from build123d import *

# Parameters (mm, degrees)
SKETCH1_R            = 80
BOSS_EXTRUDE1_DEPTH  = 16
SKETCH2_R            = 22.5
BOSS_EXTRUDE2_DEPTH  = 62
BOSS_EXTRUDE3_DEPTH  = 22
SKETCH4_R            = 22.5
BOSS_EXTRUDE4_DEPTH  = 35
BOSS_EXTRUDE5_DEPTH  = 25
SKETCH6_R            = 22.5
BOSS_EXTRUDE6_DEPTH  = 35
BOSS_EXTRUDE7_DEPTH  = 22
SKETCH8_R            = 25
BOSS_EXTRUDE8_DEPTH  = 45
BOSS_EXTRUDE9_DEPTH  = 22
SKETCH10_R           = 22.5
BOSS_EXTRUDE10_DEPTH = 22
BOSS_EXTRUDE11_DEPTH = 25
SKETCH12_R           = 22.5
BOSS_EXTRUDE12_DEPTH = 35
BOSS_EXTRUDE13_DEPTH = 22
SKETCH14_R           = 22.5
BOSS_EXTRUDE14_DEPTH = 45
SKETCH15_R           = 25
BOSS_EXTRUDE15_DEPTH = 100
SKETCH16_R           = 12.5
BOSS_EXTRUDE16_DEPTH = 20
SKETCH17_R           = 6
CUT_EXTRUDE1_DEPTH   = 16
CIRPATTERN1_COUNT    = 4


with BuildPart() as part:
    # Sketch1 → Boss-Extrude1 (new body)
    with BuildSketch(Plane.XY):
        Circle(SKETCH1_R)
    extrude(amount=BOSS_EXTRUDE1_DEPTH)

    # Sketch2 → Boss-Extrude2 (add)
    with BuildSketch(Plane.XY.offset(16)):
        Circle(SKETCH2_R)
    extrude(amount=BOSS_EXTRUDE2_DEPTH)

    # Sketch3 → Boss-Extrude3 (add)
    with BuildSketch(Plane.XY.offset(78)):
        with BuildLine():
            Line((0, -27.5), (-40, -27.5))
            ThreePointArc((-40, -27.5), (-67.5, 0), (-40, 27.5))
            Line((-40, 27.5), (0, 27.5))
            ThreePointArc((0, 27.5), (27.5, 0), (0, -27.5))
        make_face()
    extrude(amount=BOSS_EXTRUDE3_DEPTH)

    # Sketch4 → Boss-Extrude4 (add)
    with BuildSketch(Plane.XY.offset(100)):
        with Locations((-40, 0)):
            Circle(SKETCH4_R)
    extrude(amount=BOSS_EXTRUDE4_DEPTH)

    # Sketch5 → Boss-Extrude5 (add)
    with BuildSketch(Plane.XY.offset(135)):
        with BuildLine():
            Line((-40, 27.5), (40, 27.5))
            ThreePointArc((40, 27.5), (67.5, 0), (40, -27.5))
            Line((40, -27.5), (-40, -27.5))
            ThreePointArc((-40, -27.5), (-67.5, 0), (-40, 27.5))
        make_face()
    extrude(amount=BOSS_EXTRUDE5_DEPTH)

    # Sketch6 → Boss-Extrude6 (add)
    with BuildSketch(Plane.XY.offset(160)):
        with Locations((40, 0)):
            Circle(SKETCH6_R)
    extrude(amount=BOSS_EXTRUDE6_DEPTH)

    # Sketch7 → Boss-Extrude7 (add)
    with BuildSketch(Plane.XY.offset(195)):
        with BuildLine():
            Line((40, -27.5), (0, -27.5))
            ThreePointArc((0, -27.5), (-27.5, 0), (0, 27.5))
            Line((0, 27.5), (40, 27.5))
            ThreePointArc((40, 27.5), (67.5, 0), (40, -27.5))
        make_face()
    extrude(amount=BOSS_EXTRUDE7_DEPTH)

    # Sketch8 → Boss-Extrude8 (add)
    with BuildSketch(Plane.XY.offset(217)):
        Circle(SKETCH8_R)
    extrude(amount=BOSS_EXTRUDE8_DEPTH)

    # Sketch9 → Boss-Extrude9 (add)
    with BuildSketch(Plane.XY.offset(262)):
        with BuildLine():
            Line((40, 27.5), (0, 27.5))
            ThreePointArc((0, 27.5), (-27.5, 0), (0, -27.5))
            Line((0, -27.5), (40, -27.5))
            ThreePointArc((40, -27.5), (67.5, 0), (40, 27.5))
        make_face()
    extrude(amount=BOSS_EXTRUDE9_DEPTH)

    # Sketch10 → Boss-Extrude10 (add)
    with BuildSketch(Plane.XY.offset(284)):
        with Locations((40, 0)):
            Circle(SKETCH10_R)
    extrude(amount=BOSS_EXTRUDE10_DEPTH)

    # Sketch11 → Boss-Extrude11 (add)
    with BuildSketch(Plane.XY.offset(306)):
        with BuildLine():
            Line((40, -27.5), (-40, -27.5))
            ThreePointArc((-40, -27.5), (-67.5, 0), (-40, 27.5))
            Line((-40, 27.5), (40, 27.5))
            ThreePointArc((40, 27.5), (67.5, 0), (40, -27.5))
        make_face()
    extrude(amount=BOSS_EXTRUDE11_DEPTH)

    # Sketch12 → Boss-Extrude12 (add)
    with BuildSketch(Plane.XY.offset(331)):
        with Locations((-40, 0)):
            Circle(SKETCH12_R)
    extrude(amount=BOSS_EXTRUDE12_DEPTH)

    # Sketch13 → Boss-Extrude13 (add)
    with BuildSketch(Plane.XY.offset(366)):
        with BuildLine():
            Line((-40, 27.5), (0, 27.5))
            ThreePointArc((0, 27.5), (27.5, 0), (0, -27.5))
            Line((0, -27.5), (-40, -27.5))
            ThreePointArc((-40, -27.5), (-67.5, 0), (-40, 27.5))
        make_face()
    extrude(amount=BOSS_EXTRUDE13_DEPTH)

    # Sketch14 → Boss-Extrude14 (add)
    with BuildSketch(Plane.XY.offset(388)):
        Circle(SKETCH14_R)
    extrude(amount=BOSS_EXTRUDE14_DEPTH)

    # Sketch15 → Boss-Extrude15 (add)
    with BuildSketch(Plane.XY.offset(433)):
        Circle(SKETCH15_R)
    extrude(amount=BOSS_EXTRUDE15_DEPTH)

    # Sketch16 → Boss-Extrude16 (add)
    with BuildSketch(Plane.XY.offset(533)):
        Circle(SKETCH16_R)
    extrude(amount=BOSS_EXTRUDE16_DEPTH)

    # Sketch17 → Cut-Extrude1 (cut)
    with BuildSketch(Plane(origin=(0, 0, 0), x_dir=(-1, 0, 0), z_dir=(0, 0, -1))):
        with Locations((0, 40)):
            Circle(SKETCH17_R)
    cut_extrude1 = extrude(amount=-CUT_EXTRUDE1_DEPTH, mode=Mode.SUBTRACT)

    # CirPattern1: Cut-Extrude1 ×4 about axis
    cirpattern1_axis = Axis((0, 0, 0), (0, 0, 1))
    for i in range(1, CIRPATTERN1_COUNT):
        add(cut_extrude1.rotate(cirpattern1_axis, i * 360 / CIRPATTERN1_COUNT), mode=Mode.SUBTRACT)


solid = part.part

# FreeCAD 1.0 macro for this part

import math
import FreeCAD as App
import Part
import Sketcher

V = App.Vector
Q = App.Units.Quantity

doc = App.newDocument("Part")
body = doc.addObject("PartDesign::Body", "Body")

# Sketch on XY plane
sketch1 = doc.addObject("Sketcher::SketchObject", "Sketch")
body.addObject(sketch1)
sketch1.AttachmentSupport = (doc.XY_Plane, [""])
sketch1.MapMode = "FlatFace"
sketch1.addGeometry(Part.Circle(V(0, 0, 0), V(0, 0, 1), 80), False)
sketch1.addConstraint(Sketcher.Constraint("Coincident", 0, 3, -1, 1))
sketch1.addConstraint(Sketcher.Constraint("Diameter", 0, Q("160 mm")))
pad1 = doc.addObject("PartDesign::Pad", "Pad")
body.addObject(pad1)
pad1.Profile = sketch1
pad1.Length = 16

# Sketch on XY plane
sketch2 = doc.addObject("Sketcher::SketchObject", "Sketch001")
body.addObject(sketch2)
sketch2.AttachmentSupport = (doc.XY_Plane, [""])
sketch2.MapMode = "FlatFace"
sketch2.AttachmentOffset = App.Placement(V(0, 0, 16), App.Rotation())
sketch2.addGeometry(Part.Circle(V(0, 0, 0), V(0, 0, 1), 22.5), False)
sketch2.addConstraint(Sketcher.Constraint("Coincident", 0, 3, -1, 1))
sketch2.addConstraint(Sketcher.Constraint("Diameter", 0, Q("45 mm")))
pad2 = doc.addObject("PartDesign::Pad", "Pad001")
body.addObject(pad2)
pad2.Profile = sketch2
pad2.Length = 62

# Sketch on XY plane
sketch3 = doc.addObject("Sketcher::SketchObject", "Sketch002")
body.addObject(sketch3)
sketch3.AttachmentSupport = (doc.XY_Plane, [""])
sketch3.MapMode = "FlatFace"
sketch3.AttachmentOffset = App.Placement(V(0, 0, 78), App.Rotation())
sketch3.addGeometry(Part.LineSegment(V(-40, -27.5, 0), V(0, -27.5, 0)), False)
sketch3.addGeometry(Part.ArcOfCircle(Part.Circle(V(0, 0, 0), V(0, 0, 1), 27.5), math.radians(-90), math.radians(90)), False)
sketch3.addGeometry(Part.LineSegment(V(0, 27.5, 0), V(-40, 27.5, 0)), False)
sketch3.addGeometry(Part.ArcOfCircle(Part.Circle(V(-40, 0, 0), V(0, 0, 1), 27.5), math.radians(90), math.radians(270)), False)
sketch3.addConstraint(Sketcher.Constraint("Tangent", 0, 2, 1, 1))
sketch3.addConstraint(Sketcher.Constraint("Tangent", 1, 2, 2, 1))
sketch3.addConstraint(Sketcher.Constraint("Tangent", 2, 2, 3, 1))
sketch3.addConstraint(Sketcher.Constraint("Tangent", 3, 2, 0, 1))
sketch3.addConstraint(Sketcher.Constraint("Horizontal", 0))
sketch3.addConstraint(Sketcher.Constraint("Horizontal", 2))
sketch3.addConstraint(Sketcher.Constraint("Coincident", 1, 3, -1, 1))
sketch3.addConstraint(Sketcher.Constraint("Radius", 1, Q("27.5 mm")))
sketch3.addConstraint(Sketcher.Constraint("DistanceX", 0, 1, 0, 2, Q("40 mm")))
pad3 = doc.addObject("PartDesign::Pad", "Pad002")
body.addObject(pad3)
pad3.Profile = sketch3
pad3.Length = 22

# Sketch on XY plane
sketch4 = doc.addObject("Sketcher::SketchObject", "Sketch003")
body.addObject(sketch4)
sketch4.AttachmentSupport = (doc.XY_Plane, [""])
sketch4.MapMode = "FlatFace"
sketch4.AttachmentOffset = App.Placement(V(0, 0, 100), App.Rotation())
sketch4.addGeometry(Part.Circle(V(-40, 0, 0), V(0, 0, 1), 22.5), False)
sketch4.addConstraint(Sketcher.Constraint("PointOnObject", 0, 3, -1))
sketch4.addConstraint(Sketcher.Constraint("Diameter", 0, Q("45 mm")))
sketch4.addConstraint(Sketcher.Constraint("DistanceX", 0, 3, -1, 1, Q("40 mm")))
pad4 = doc.addObject("PartDesign::Pad", "Pad003")
body.addObject(pad4)
pad4.Profile = sketch4
pad4.Length = 35

# Sketch on XY plane
sketch5 = doc.addObject("Sketcher::SketchObject", "Sketch004")
body.addObject(sketch5)
sketch5.AttachmentSupport = (doc.XY_Plane, [""])
sketch5.MapMode = "FlatFace"
sketch5.AttachmentOffset = App.Placement(V(0, 0, 135), App.Rotation())
sketch5.addGeometry(Part.LineSegment(V(40, 27.5, 0), V(-40, 27.5, 0)), False)
sketch5.addGeometry(Part.ArcOfCircle(Part.Circle(V(-40, 0, 0), V(0, 0, 1), 27.5), math.radians(90), math.radians(270)), False)
sketch5.addGeometry(Part.LineSegment(V(-40, -27.5, 0), V(40, -27.5, 0)), False)
sketch5.addGeometry(Part.ArcOfCircle(Part.Circle(V(40, 0, 0), V(0, 0, 1), 27.5), math.radians(-90), math.radians(90)), False)
sketch5.addConstraint(Sketcher.Constraint("Tangent", 0, 2, 1, 1))
sketch5.addConstraint(Sketcher.Constraint("Tangent", 1, 2, 2, 1))
sketch5.addConstraint(Sketcher.Constraint("Tangent", 2, 2, 3, 1))
sketch5.addConstraint(Sketcher.Constraint("Tangent", 3, 2, 0, 1))
sketch5.addConstraint(Sketcher.Constraint("Horizontal", 0))
sketch5.addConstraint(Sketcher.Constraint("Horizontal", 2))
sketch5.addConstraint(Sketcher.Constraint("Symmetric", 1, 3, 3, 3, -1, 1))
sketch5.addConstraint(Sketcher.Constraint("Radius", 1, Q("27.5 mm")))
sketch5.addConstraint(Sketcher.Constraint("DistanceX", 0, 2, 0, 1, Q("80 mm")))
pad5 = doc.addObject("PartDesign::Pad", "Pad004")
body.addObject(pad5)
pad5.Profile = sketch5
pad5.Length = 25

# Sketch on XY plane
sketch6 = doc.addObject("Sketcher::SketchObject", "Sketch005")
body.addObject(sketch6)
sketch6.AttachmentSupport = (doc.XY_Plane, [""])
sketch6.MapMode = "FlatFace"
sketch6.AttachmentOffset = App.Placement(V(0, 0, 160), App.Rotation())
sketch6.addGeometry(Part.Circle(V(40, 0, 0), V(0, 0, 1), 22.5), False)
sketch6.addConstraint(Sketcher.Constraint("PointOnObject", 0, 3, -1))
sketch6.addConstraint(Sketcher.Constraint("Diameter", 0, Q("45 mm")))
sketch6.addConstraint(Sketcher.Constraint("DistanceX", -1, 1, 0, 3, Q("40 mm")))
pad6 = doc.addObject("PartDesign::Pad", "Pad005")
body.addObject(pad6)
pad6.Profile = sketch6
pad6.Length = 35

# Sketch on XY plane
sketch7 = doc.addObject("Sketcher::SketchObject", "Sketch006")
body.addObject(sketch7)
sketch7.AttachmentSupport = (doc.XY_Plane, [""])
sketch7.MapMode = "FlatFace"
sketch7.AttachmentOffset = App.Placement(V(0, 0, 195), App.Rotation())
sketch7.addGeometry(Part.LineSegment(V(0, -27.5, 0), V(40, -27.5, 0)), False)
sketch7.addGeometry(Part.ArcOfCircle(Part.Circle(V(40, 0, 0), V(0, 0, 1), 27.5), math.radians(-90), math.radians(90)), False)
sketch7.addGeometry(Part.LineSegment(V(40, 27.5, 0), V(0, 27.5, 0)), False)
sketch7.addGeometry(Part.ArcOfCircle(Part.Circle(V(0, 0, 0), V(0, 0, 1), 27.5), math.radians(90), math.radians(270)), False)
sketch7.addConstraint(Sketcher.Constraint("Tangent", 0, 2, 1, 1))
sketch7.addConstraint(Sketcher.Constraint("Tangent", 1, 2, 2, 1))
sketch7.addConstraint(Sketcher.Constraint("Tangent", 2, 2, 3, 1))
sketch7.addConstraint(Sketcher.Constraint("Tangent", 3, 2, 0, 1))
sketch7.addConstraint(Sketcher.Constraint("Horizontal", 0))
sketch7.addConstraint(Sketcher.Constraint("Horizontal", 2))
sketch7.addConstraint(Sketcher.Constraint("Coincident", 3, 3, -1, 1))
sketch7.addConstraint(Sketcher.Constraint("Radius", 1, Q("27.5 mm")))
sketch7.addConstraint(Sketcher.Constraint("DistanceX", 0, 1, 0, 2, Q("40 mm")))
pad7 = doc.addObject("PartDesign::Pad", "Pad006")
body.addObject(pad7)
pad7.Profile = sketch7
pad7.Length = 22

# Sketch on XY plane
sketch8 = doc.addObject("Sketcher::SketchObject", "Sketch007")
body.addObject(sketch8)
sketch8.AttachmentSupport = (doc.XY_Plane, [""])
sketch8.MapMode = "FlatFace"
sketch8.AttachmentOffset = App.Placement(V(0, 0, 217), App.Rotation())
sketch8.addGeometry(Part.Circle(V(0, 0, 0), V(0, 0, 1), 25), False)
sketch8.addConstraint(Sketcher.Constraint("Coincident", 0, 3, -1, 1))
sketch8.addConstraint(Sketcher.Constraint("Diameter", 0, Q("50 mm")))
pad8 = doc.addObject("PartDesign::Pad", "Pad007")
body.addObject(pad8)
pad8.Profile = sketch8
pad8.Length = 45

# Sketch on XY plane
sketch9 = doc.addObject("Sketcher::SketchObject", "Sketch008")
body.addObject(sketch9)
sketch9.AttachmentSupport = (doc.XY_Plane, [""])
sketch9.MapMode = "FlatFace"
sketch9.AttachmentOffset = App.Placement(V(0, 0, 262), App.Rotation())
sketch9.addGeometry(Part.LineSegment(V(40, 27.5, 0), V(0, 27.5, 0)), False)
sketch9.addGeometry(Part.ArcOfCircle(Part.Circle(V(0, 0, 0), V(0, 0, 1), 27.5), math.radians(90), math.radians(270)), False)
sketch9.addGeometry(Part.LineSegment(V(0, -27.5, 0), V(40, -27.5, 0)), False)
sketch9.addGeometry(Part.ArcOfCircle(Part.Circle(V(40, 0, 0), V(0, 0, 1), 27.5), math.radians(-90), math.radians(90)), False)
sketch9.addConstraint(Sketcher.Constraint("Tangent", 0, 2, 1, 1))
sketch9.addConstraint(Sketcher.Constraint("Tangent", 1, 2, 2, 1))
sketch9.addConstraint(Sketcher.Constraint("Tangent", 2, 2, 3, 1))
sketch9.addConstraint(Sketcher.Constraint("Tangent", 3, 2, 0, 1))
sketch9.addConstraint(Sketcher.Constraint("Horizontal", 0))
sketch9.addConstraint(Sketcher.Constraint("Horizontal", 2))
sketch9.addConstraint(Sketcher.Constraint("Coincident", 1, 3, -1, 1))
sketch9.addConstraint(Sketcher.Constraint("Radius", 1, Q("27.5 mm")))
sketch9.addConstraint(Sketcher.Constraint("DistanceX", 0, 2, 0, 1, Q("40 mm")))
pad9 = doc.addObject("PartDesign::Pad", "Pad008")
body.addObject(pad9)
pad9.Profile = sketch9
pad9.Length = 22

# Sketch on XY plane
sketch10 = doc.addObject("Sketcher::SketchObject", "Sketch009")
body.addObject(sketch10)
sketch10.AttachmentSupport = (doc.XY_Plane, [""])
sketch10.MapMode = "FlatFace"
sketch10.AttachmentOffset = App.Placement(V(0, 0, 284), App.Rotation())
sketch10.addGeometry(Part.Circle(V(40, 0, 0), V(0, 0, 1), 22.5), False)
sketch10.addConstraint(Sketcher.Constraint("PointOnObject", 0, 3, -1))
sketch10.addConstraint(Sketcher.Constraint("Diameter", 0, Q("45 mm")))
sketch10.addConstraint(Sketcher.Constraint("DistanceX", -1, 1, 0, 3, Q("40 mm")))
pad10 = doc.addObject("PartDesign::Pad", "Pad009")
body.addObject(pad10)
pad10.Profile = sketch10
pad10.Length = 22

# Sketch on XY plane
sketch11 = doc.addObject("Sketcher::SketchObject", "Sketch010")
body.addObject(sketch11)
sketch11.AttachmentSupport = (doc.XY_Plane, [""])
sketch11.MapMode = "FlatFace"
sketch11.AttachmentOffset = App.Placement(V(0, 0, 306), App.Rotation())
sketch11.addGeometry(Part.LineSegment(V(-40, -27.5, 0), V(40, -27.5, 0)), False)
sketch11.addGeometry(Part.ArcOfCircle(Part.Circle(V(40, 0, 0), V(0, 0, 1), 27.5), math.radians(-90), math.radians(90)), False)
sketch11.addGeometry(Part.LineSegment(V(40, 27.5, 0), V(-40, 27.5, 0)), False)
sketch11.addGeometry(Part.ArcOfCircle(Part.Circle(V(-40, 0, 0), V(0, 0, 1), 27.5), math.radians(90), math.radians(270)), False)
sketch11.addConstraint(Sketcher.Constraint("Tangent", 0, 2, 1, 1))
sketch11.addConstraint(Sketcher.Constraint("Tangent", 1, 2, 2, 1))
sketch11.addConstraint(Sketcher.Constraint("Tangent", 2, 2, 3, 1))
sketch11.addConstraint(Sketcher.Constraint("Tangent", 3, 2, 0, 1))
sketch11.addConstraint(Sketcher.Constraint("Horizontal", 0))
sketch11.addConstraint(Sketcher.Constraint("Horizontal", 2))
sketch11.addConstraint(Sketcher.Constraint("Symmetric", 1, 3, 3, 3, -1, 1))
sketch11.addConstraint(Sketcher.Constraint("Radius", 1, Q("27.5 mm")))
sketch11.addConstraint(Sketcher.Constraint("DistanceX", 0, 1, 0, 2, Q("80 mm")))
pad11 = doc.addObject("PartDesign::Pad", "Pad010")
body.addObject(pad11)
pad11.Profile = sketch11
pad11.Length = 25

# Sketch on XY plane
sketch12 = doc.addObject("Sketcher::SketchObject", "Sketch011")
body.addObject(sketch12)
sketch12.AttachmentSupport = (doc.XY_Plane, [""])
sketch12.MapMode = "FlatFace"
sketch12.AttachmentOffset = App.Placement(V(0, 0, 331), App.Rotation())
sketch12.addGeometry(Part.Circle(V(-40, 0, 0), V(0, 0, 1), 22.5), False)
sketch12.addConstraint(Sketcher.Constraint("PointOnObject", 0, 3, -1))
sketch12.addConstraint(Sketcher.Constraint("Diameter", 0, Q("45 mm")))
sketch12.addConstraint(Sketcher.Constraint("DistanceX", 0, 3, -1, 1, Q("40 mm")))
pad12 = doc.addObject("PartDesign::Pad", "Pad011")
body.addObject(pad12)
pad12.Profile = sketch12
pad12.Length = 35

# Sketch on XY plane
sketch13 = doc.addObject("Sketcher::SketchObject", "Sketch012")
body.addObject(sketch13)
sketch13.AttachmentSupport = (doc.XY_Plane, [""])
sketch13.MapMode = "FlatFace"
sketch13.AttachmentOffset = App.Placement(V(0, 0, 366), App.Rotation())
sketch13.addGeometry(Part.LineSegment(V(0, 27.5, 0), V(-40, 27.5, 0)), False)
sketch13.addGeometry(Part.ArcOfCircle(Part.Circle(V(-40, 0, 0), V(0, 0, 1), 27.5), math.radians(90), math.radians(270)), False)
sketch13.addGeometry(Part.LineSegment(V(-40, -27.5, 0), V(0, -27.5, 0)), False)
sketch13.addGeometry(Part.ArcOfCircle(Part.Circle(V(0, 0, 0), V(0, 0, 1), 27.5), math.radians(-90), math.radians(90)), False)
sketch13.addConstraint(Sketcher.Constraint("Tangent", 0, 2, 1, 1))
sketch13.addConstraint(Sketcher.Constraint("Tangent", 1, 2, 2, 1))
sketch13.addConstraint(Sketcher.Constraint("Tangent", 2, 2, 3, 1))
sketch13.addConstraint(Sketcher.Constraint("Tangent", 3, 2, 0, 1))
sketch13.addConstraint(Sketcher.Constraint("Horizontal", 0))
sketch13.addConstraint(Sketcher.Constraint("Horizontal", 2))
sketch13.addConstraint(Sketcher.Constraint("Coincident", 3, 3, -1, 1))
sketch13.addConstraint(Sketcher.Constraint("Radius", 1, Q("27.5 mm")))
sketch13.addConstraint(Sketcher.Constraint("DistanceX", 0, 2, 0, 1, Q("40 mm")))
pad13 = doc.addObject("PartDesign::Pad", "Pad012")
body.addObject(pad13)
pad13.Profile = sketch13
pad13.Length = 22

# Sketch on XY plane
sketch14 = doc.addObject("Sketcher::SketchObject", "Sketch013")
body.addObject(sketch14)
sketch14.AttachmentSupport = (doc.XY_Plane, [""])
sketch14.MapMode = "FlatFace"
sketch14.AttachmentOffset = App.Placement(V(0, 0, 388), App.Rotation())
sketch14.addGeometry(Part.Circle(V(0, 0, 0), V(0, 0, 1), 22.5), False)
sketch14.addConstraint(Sketcher.Constraint("Coincident", 0, 3, -1, 1))
sketch14.addConstraint(Sketcher.Constraint("Diameter", 0, Q("45 mm")))
pad14 = doc.addObject("PartDesign::Pad", "Pad013")
body.addObject(pad14)
pad14.Profile = sketch14
pad14.Length = 45

# Sketch on XY plane
sketch15 = doc.addObject("Sketcher::SketchObject", "Sketch014")
body.addObject(sketch15)
sketch15.AttachmentSupport = (doc.XY_Plane, [""])
sketch15.MapMode = "FlatFace"
sketch15.AttachmentOffset = App.Placement(V(0, 0, 433), App.Rotation())
sketch15.addGeometry(Part.Circle(V(0, 0, 0), V(0, 0, 1), 25), False)
sketch15.addConstraint(Sketcher.Constraint("Coincident", 0, 3, -1, 1))
sketch15.addConstraint(Sketcher.Constraint("Diameter", 0, Q("50 mm")))
pad15 = doc.addObject("PartDesign::Pad", "Pad014")
body.addObject(pad15)
pad15.Profile = sketch15
pad15.Length = 100

# Sketch on XY plane
sketch16 = doc.addObject("Sketcher::SketchObject", "Sketch015")
body.addObject(sketch16)
sketch16.AttachmentSupport = (doc.XY_Plane, [""])
sketch16.MapMode = "FlatFace"
sketch16.AttachmentOffset = App.Placement(V(0, 0, 533), App.Rotation())
sketch16.addGeometry(Part.Circle(V(0, 0, 0), V(0, 0, 1), 12.5), False)
sketch16.addConstraint(Sketcher.Constraint("Coincident", 0, 3, -1, 1))
sketch16.addConstraint(Sketcher.Constraint("Diameter", 0, Q("25 mm")))
pad16 = doc.addObject("PartDesign::Pad", "Pad015")
body.addObject(pad16)
pad16.Profile = sketch16
pad16.Length = 20

# Sketch on XY plane
sketch17 = doc.addObject("Sketcher::SketchObject", "Sketch016")
body.addObject(sketch17)
sketch17.AttachmentSupport = (doc.XY_Plane, [""])
sketch17.MapMode = "FlatFace"
sketch17.addGeometry(Part.Circle(V(0, 40, 0), V(0, 0, 1), 6), False)
sketch17.addConstraint(Sketcher.Constraint("PointOnObject", 0, 3, -2))
sketch17.addConstraint(Sketcher.Constraint("Diameter", 0, Q("12 mm")))
sketch17.addConstraint(Sketcher.Constraint("DistanceY", -1, 1, 0, 3, Q("40 mm")))
pocket1 = doc.addObject("PartDesign::Pocket", "Pocket")
body.addObject(pocket1)
pocket1.Profile = sketch17
pocket1.Length = 16
pocket1.Reversed = True
doc.recompute()

polarpattern = doc.addObject("PartDesign::PolarPattern", "PolarPattern")
body.addObject(polarpattern)
polarpattern.Originals = [pocket1]
polarpattern.Axis = (doc.Z_Axis, [""])
polarpattern.Angle = 360
polarpattern.Occurrences = 4
body.Tip = polarpattern

doc.recompute()
